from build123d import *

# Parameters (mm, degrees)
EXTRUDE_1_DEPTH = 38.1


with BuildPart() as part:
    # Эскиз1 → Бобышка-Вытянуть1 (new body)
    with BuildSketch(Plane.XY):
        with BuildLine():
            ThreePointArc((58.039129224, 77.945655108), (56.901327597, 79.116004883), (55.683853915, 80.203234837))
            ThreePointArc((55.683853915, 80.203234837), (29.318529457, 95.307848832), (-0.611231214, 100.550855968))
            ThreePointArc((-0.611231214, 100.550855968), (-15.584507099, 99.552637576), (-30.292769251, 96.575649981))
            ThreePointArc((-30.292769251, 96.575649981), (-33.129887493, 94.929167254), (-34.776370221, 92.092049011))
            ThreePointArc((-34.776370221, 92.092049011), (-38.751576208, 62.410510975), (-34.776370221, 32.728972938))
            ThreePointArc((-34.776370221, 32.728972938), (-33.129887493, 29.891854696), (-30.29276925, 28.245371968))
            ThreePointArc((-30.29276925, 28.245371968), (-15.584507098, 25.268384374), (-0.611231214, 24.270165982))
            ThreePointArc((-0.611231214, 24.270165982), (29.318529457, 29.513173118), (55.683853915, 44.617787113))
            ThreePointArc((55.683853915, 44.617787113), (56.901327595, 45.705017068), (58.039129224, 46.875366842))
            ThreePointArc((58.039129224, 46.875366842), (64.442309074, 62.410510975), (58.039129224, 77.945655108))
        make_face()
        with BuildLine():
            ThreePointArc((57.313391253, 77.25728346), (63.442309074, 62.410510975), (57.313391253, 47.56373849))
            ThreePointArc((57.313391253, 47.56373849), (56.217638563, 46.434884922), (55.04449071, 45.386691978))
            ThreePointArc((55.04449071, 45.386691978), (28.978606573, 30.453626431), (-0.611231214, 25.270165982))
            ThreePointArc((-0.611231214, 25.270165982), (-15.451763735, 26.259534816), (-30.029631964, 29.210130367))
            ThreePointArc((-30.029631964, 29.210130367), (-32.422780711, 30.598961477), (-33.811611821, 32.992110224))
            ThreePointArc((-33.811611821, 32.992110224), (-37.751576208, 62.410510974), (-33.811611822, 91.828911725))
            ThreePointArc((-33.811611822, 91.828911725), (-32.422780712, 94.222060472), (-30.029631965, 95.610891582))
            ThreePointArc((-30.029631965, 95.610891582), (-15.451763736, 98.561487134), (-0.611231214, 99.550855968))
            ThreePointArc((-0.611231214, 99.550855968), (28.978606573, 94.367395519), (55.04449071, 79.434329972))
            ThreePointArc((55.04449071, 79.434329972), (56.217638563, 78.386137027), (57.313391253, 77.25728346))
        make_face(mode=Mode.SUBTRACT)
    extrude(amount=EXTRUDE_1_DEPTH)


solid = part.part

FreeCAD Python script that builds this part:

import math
import FreeCAD as App
import Part
import Sketcher
Q = App.Units.Quantity

doc = App.newDocument("Part")
body = doc.addObject("PartDesign::Body", "Body")

sketch1 = body.newObject("Sketcher::SketchObject", "Sketch")
sketch1.AttachmentSupport = (doc.getObject("XY_Plane"), [""])
sketch1.MapMode = "FlatFace"
sketch1.addGeometry(Part.ArcOfCircle(Part.Circle(App.Vector(40.9, 62.4, 0), App.Vector(0, 0, 1), 23.1), math.radians(42.17), math.radians(50.26)), False)
sketch1.addGeometry(Part.ArcOfCircle(Part.Circle(App.Vector(-0.6, 12.5, 0), App.Vector(0, 0, 1), 88), math.radians(50), math.radians(90)), False)
sketch1.addGeometry(Part.ArcOfCircle(Part.Circle(App.Vector(-0.6, -12.2, 0), App.Vector(0, 0, 1), 112.8), math.radians(90), math.radians(105.26)), False)
sketch1.addGeometry(Part.ArcOfCircle(Part.Circle(App.Vector(-28.6, 90.4, 0), App.Vector(0, 0, 1), 6.4), math.radians(105), math.radians(165)), False)
sketch1.addGeometry(Part.ArcOfCircle(Part.Circle(App.Vector(74, 62.4, 0), App.Vector(0, 0, 1), 112.8), math.radians(165), math.radians(195)), False)
sketch1.addGeometry(Part.ArcOfCircle(Part.Circle(App.Vector(-28.6, 34.4, 0), App.Vector(0, 0, 1), 6.4), math.radians(-165), math.radians(-105)), False)
sketch1.addGeometry(Part.ArcOfCircle(Part.Circle(App.Vector(-0.6, 137.1, 0), App.Vector(0, 0, 1), 112.8), math.radians(-105.26), math.radians(-90)), False)
sketch1.addGeometry(Part.ArcOfCircle(Part.Circle(App.Vector(-0.6, 112.3, 0), App.Vector(0, 0, 1), 88), math.radians(-90), math.radians(-50)), False)
sketch1.addGeometry(Part.ArcOfCircle(Part.Circle(App.Vector(40.9, 62.4, 0), App.Vector(0, 0, 1), 23.1), math.radians(-50.26), math.radians(-42.17)), False)
sketch1.addGeometry(Part.ArcOfCircle(Part.Circle(App.Vector(42.4, 62.4, 0), App.Vector(0, 0, 1), 22), math.radians(-45), math.radians(45)), False)
sketch1.addGeometry(Part.ArcOfCircle(Part.Circle(App.Vector(40.9, 62.4, 0), App.Vector(0, 0, 1), 22.1), math.radians(42.11), math.radians(50.26)), False)
sketch1.addGeometry(Part.ArcOfCircle(Part.Circle(App.Vector(42.4, 62.4, 0), App.Vector(0, 0, 1), 21), math.radians(-45), math.radians(45)), False)
sketch1.addGeometry(Part.ArcOfCircle(Part.Circle(App.Vector(40.9, 62.4, 0), App.Vector(0, 0, 1), 22.1), math.radians(-50.26), math.radians(-42.11)), False)
sketch1.addGeometry(Part.ArcOfCircle(Part.Circle(App.Vector(-0.6, 112.3, 0), App.Vector(0, 0, 1), 87), math.radians(-90), math.radians(-50)), False)
sketch1.addGeometry(Part.ArcOfCircle(Part.Circle(App.Vector(-0.6, 137.1, 0), App.Vector(0, 0, 1), 111.8), math.radians(-105.26), math.radians(-90)), False)
sketch1.addGeometry(Part.ArcOfCircle(Part.Circle(App.Vector(-28.6, 34.4, 0), App.Vector(0, 0, 1), 5.4), math.radians(-165), math.radians(-105)), False)
sketch1.addGeometry(Part.ArcOfCircle(Part.Circle(App.Vector(74, 62.4, 0), App.Vector(0, 0, 1), 111.8), math.radians(165), math.radians(195)), False)
sketch1.addGeometry(Part.ArcOfCircle(Part.Circle(App.Vector(-28.6, 90.4, 0), App.Vector(0, 0, 1), 5.4), math.radians(105), math.radians(165)), False)
sketch1.addGeometry(Part.ArcOfCircle(Part.Circle(App.Vector(-0.6, -12.2, 0), App.Vector(0, 0, 1), 111.8), math.radians(90), math.radians(105.26)), False)
sketch1.addGeometry(Part.ArcOfCircle(Part.Circle(App.Vector(-0.6, 12.5, 0), App.Vector(0, 0, 1), 87), math.radians(50), math.radians(90)), False)
sketch1.addConstraint(Sketcher.Constraint("Tangent", 0, 2, 1, 1))
sketch1.addConstraint(Sketcher.Constraint("Tangent", 1, 2, 2, 1))
sketch1.addConstraint(Sketcher.Constraint("Tangent", 2, 2, 3, 1))
sketch1.addConstraint(Sketcher.Constraint("Tangent", 3, 2, 4, 1))
sketch1.addConstraint(Sketcher.Constraint("Tangent", 4, 2, 5, 1))
sketch1.addConstraint(Sketcher.Constraint("Tangent", 5, 2, 6, 1))
sketch1.addConstraint(Sketcher.Constraint("Tangent", 6, 2, 7, 1))
sketch1.addConstraint(Sketcher.Constraint("Tangent", 7, 2, 8, 1))
sketch1.addConstraint(Sketcher.Constraint("Coincident", 8, 2, 9, 1))
sketch1.addConstraint(Sketcher.Constraint("Coincident", 9, 2, 0, 1))
sketch1.addConstraint(Sketcher.Constraint("Coincident", 10, 1, 11, 2))
sketch1.addConstraint(Sketcher.Constraint("Coincident", 11, 1, 12, 2))
sketch1.addConstraint(Sketcher.Constraint("Tangent", 12, 1, 13, 2))
sketch1.addConstraint(Sketcher.Constraint("Tangent", 13, 1, 14, 2))
sketch1.addConstraint(Sketcher.Constraint("Tangent", 14, 1, 15, 2))
sketch1.addConstraint(Sketcher.Constraint("Tangent", 15, 1, 16, 2))
sketch1.addConstraint(Sketcher.Constraint("Tangent", 16, 1, 17, 2))
sketch1.addConstraint(Sketcher.Constraint("Tangent", 17, 1, 18, 2))
sketch1.addConstraint(Sketcher.Constraint("Tangent", 18, 1, 19, 2))
sketch1.addConstraint(Sketcher.Constraint("Tangent", 19, 1, 10, 2))
sketch1.addConstraint(Sketcher.Constraint("Coincident", 8, 3, 0, 3))
sketch1.addConstraint(Sketcher.Constraint("Coincident", 10, 3, 0, 3))
sketch1.addConstraint(Sketcher.Constraint("Coincident", 11, 3, 9, 3))
sketch1.addConstraint(Sketcher.Constraint("Coincident", 12, 3, 0, 3))
sketch1.addConstraint(Sketcher.Constraint("Coincident", 13, 3, 7, 3))
sketch1.addConstraint(Sketcher.Constraint("Coincident", 14, 3, 6, 3))
sketch1.addConstraint(Sketcher.Constraint("Coincident", 15, 3, 5, 3))
sketch1.addConstraint(Sketcher.Constraint("Coincident", 16, 3, 4, 3))
sketch1.addConstraint(Sketcher.Constraint("Coincident", 17, 3, 3, 3))
sketch1.addConstraint(Sketcher.Constraint("Coincident", 18, 3, 2, 3))
sketch1.addConstraint(Sketcher.Constraint("Coincident", 19, 3, 1, 3))
sketch1.addConstraint(Sketcher.Constraint("Equal", 2, 4))
sketch1.addConstraint(Sketcher.Constraint("Equal", 3, 5))
sketch1.addConstraint(Sketcher.Constraint("Equal", 4, 6))
sketch1.addConstraint(Sketcher.Constraint("Equal", 1, 7))
sketch1.addConstraint(Sketcher.Constraint("Equal", 0, 8))
sketch1.addConstraint(Sketcher.Constraint("Horizontal", 0, 3, 4, 3))
sketch1.addConstraint(Sketcher.Constraint("Horizontal", 8, 3, 9, 3))
sketch1.addConstraint(Sketcher.Constraint("Vertical", 1, 3, 2, 3))
sketch1.addConstraint(Sketcher.Constraint("Vertical", 3, 3, 5, 3))
sketch1.addConstraint(Sketcher.Constraint("Vertical", 2, 3, 6, 3))
sketch1.addConstraint(Sketcher.Constraint("Radius", 1, Q("88.048678 mm")))
sketch1.addConstraint(Sketcher.Constraint("Radius", 2, Q("112.798678 mm")))
sketch1.addConstraint(Sketcher.Constraint("Radius", 9, Q("22.046969 mm")))
sketch1.addConstraint(Sketcher.Constraint("Radius", 11, Q("21.046969 mm")))
sketch1.addConstraint(Sketcher.Constraint("Radius", 13, Q("87.048678 mm")))
sketch1.addConstraint(Sketcher.Constraint("Radius", 0, Q("23.140345 mm")))
sketch1.addConstraint(Sketcher.Constraint("Radius", 3, Q("6.390345 mm")))
sketch1.addConstraint(Sketcher.Constraint("DistanceX", 1, 3, 0, 3, Q("41.5 mm")))
sketch1.addConstraint(Sketcher.Constraint("DistanceX", 3, 3, 0, 3, Q("69.5 mm")))
sketch1.addConstraint(Sketcher.Constraint("DistanceX", 12, 1, 11, 1, Q("2.268901 mm")))
sketch1.addConstraint(Sketcher.Constraint("DistanceX", -1, 1, 0, 3, Q("40.888769 mm")))
sketch1.addConstraint(Sketcher.Constraint("DistanceY", -1, 1, 0, 3, Q("62.410511 mm")))
pad1 = body.newObject("PartDesign::Pad", "Pad")
pad1.Profile = sketch1
pad1.Length = Q("1.5 in")

doc.recompute()
